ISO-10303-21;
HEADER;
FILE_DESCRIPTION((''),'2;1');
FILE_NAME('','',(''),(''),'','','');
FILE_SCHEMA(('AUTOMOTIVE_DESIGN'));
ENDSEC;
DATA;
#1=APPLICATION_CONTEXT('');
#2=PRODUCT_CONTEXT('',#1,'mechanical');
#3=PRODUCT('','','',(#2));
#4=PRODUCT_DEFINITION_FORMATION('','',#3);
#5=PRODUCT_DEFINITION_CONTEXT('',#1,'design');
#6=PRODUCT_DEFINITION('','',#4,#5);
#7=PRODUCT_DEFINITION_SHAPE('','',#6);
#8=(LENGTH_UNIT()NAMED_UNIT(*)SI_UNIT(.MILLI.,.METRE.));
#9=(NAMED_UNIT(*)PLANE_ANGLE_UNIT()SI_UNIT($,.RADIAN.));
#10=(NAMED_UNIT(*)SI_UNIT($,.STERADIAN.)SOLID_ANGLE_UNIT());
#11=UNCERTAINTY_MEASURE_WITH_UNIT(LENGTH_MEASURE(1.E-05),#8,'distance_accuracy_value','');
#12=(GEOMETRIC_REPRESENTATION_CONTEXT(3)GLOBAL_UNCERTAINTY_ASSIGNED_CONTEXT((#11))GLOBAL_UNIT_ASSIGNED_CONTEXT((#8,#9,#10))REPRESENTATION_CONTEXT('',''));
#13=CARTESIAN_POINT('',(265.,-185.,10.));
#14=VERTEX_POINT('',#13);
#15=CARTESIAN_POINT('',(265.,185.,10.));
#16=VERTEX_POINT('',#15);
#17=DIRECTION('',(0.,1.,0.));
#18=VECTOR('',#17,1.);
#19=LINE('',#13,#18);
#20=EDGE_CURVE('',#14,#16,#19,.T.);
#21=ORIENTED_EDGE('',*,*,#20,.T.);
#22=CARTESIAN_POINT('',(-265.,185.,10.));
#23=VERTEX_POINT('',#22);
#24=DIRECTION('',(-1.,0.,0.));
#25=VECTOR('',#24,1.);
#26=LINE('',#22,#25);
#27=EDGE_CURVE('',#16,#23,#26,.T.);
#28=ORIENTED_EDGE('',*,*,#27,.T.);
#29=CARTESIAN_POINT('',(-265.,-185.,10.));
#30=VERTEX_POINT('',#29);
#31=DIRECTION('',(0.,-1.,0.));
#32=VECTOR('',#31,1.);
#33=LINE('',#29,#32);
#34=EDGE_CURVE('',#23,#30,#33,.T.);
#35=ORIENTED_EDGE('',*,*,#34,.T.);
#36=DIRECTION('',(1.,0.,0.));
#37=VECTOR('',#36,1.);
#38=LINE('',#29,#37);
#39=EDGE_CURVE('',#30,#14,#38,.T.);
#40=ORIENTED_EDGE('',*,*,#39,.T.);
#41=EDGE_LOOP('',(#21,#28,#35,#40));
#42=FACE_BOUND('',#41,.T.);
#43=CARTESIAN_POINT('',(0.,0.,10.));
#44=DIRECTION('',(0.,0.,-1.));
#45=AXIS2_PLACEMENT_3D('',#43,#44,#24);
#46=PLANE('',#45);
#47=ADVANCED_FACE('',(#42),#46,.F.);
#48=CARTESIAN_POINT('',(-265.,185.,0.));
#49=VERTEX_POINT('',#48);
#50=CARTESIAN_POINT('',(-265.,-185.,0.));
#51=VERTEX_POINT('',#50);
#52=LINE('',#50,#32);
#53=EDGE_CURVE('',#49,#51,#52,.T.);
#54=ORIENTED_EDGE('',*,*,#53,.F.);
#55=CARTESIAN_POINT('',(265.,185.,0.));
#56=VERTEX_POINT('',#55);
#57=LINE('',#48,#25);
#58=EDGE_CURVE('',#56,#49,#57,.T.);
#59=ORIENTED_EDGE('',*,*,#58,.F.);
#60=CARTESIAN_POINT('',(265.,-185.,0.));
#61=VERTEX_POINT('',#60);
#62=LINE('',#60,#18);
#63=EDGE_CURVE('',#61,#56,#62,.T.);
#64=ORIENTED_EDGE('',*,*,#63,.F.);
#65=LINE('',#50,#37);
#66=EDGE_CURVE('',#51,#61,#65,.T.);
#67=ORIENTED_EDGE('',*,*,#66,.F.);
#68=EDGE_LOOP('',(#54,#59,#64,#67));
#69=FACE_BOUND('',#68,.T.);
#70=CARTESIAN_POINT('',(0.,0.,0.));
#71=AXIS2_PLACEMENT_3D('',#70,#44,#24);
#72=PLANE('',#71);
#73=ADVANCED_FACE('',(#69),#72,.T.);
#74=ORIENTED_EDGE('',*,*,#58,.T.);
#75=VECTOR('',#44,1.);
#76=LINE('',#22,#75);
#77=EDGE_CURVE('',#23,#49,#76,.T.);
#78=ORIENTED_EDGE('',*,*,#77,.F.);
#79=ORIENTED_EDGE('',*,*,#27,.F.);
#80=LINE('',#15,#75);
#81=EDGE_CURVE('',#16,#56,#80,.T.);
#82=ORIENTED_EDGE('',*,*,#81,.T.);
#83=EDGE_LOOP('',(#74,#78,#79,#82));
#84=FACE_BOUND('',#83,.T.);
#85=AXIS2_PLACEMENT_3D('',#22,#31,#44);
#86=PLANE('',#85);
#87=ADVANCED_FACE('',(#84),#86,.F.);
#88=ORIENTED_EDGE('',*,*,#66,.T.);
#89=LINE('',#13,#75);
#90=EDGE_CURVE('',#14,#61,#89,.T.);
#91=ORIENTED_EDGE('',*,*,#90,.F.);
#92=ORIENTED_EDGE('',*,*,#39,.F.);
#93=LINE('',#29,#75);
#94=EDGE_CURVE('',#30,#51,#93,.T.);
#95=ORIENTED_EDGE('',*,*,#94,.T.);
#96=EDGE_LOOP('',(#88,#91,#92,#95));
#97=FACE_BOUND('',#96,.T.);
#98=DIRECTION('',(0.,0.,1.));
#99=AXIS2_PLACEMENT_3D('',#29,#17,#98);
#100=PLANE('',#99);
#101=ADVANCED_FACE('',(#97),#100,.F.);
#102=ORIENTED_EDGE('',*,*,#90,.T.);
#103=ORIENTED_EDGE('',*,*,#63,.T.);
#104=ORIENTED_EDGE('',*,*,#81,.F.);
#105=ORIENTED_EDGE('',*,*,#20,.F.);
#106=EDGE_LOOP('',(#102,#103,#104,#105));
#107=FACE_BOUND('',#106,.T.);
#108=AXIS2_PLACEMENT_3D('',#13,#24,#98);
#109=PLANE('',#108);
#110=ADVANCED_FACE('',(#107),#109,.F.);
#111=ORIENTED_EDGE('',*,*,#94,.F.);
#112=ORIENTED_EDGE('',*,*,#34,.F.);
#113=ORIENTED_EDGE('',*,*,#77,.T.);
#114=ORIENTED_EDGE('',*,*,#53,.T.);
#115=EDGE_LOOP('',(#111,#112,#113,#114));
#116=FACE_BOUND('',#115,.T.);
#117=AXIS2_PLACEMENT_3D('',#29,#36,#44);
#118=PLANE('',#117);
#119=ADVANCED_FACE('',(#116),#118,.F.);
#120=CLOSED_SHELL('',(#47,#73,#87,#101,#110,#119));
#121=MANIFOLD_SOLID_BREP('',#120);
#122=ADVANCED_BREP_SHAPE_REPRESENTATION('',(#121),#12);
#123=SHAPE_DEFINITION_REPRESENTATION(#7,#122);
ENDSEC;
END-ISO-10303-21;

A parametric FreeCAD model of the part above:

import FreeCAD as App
import Part
import Sketcher
Q = App.Units.Quantity

doc = App.newDocument("Part")
body = doc.addObject("PartDesign::Body", "Body")

sketch1 = body.newObject("Sketcher::SketchObject", "Sketch")
sketch1.AttachmentSupport = (doc.getObject("XY_Plane"), [""])
sketch1.MapMode = "FlatFace"
sketch1.addGeometry(Part.LineSegment(App.Vector(-265, 185, 0), App.Vector(-265, -185, 0)), False)
sketch1.addGeometry(Part.LineSegment(App.Vector(-265, -185, 0), App.Vector(265, -185, 0)), False)
sketch1.addGeometry(Part.LineSegment(App.Vector(265, -185, 0), App.Vector(265, 185, 0)), False)
sketch1.addGeometry(Part.LineSegment(App.Vector(265, 185, 0), App.Vector(-265, 185, 0)), False)
sketch1.addConstraint(Sketcher.Constraint("Coincident", 0, 2, 1, 1))
sketch1.addConstraint(Sketcher.Constraint("Coincident", 1, 2, 2, 1))
sketch1.addConstraint(Sketcher.Constraint("Coincident", 2, 2, 3, 1))
sketch1.addConstraint(Sketcher.Constraint("Coincident", 3, 2, 0, 1))
sketch1.addConstraint(Sketcher.Constraint("Vertical", 0))
sketch1.addConstraint(Sketcher.Constraint("Horizontal", 1))
sketch1.addConstraint(Sketcher.Constraint("Vertical", 2))
sketch1.addConstraint(Sketcher.Constraint("Horizontal", 3))
sketch1.addConstraint(Sketcher.Constraint("Symmetric", 0, 2, 2, 2, -1, 1))
sketch1.addConstraint(Sketcher.Constraint("DistanceX", 1, 1, 1, 2, Q("530 mm")))
sketch1.addConstraint(Sketcher.Constraint("DistanceY", 0, 2, 0, 1, Q("370 mm")))
pad1 = body.newObject("PartDesign::Pad", "Pad")
pad1.Profile = sketch1
pad1.Length = 10

doc.recompute()
